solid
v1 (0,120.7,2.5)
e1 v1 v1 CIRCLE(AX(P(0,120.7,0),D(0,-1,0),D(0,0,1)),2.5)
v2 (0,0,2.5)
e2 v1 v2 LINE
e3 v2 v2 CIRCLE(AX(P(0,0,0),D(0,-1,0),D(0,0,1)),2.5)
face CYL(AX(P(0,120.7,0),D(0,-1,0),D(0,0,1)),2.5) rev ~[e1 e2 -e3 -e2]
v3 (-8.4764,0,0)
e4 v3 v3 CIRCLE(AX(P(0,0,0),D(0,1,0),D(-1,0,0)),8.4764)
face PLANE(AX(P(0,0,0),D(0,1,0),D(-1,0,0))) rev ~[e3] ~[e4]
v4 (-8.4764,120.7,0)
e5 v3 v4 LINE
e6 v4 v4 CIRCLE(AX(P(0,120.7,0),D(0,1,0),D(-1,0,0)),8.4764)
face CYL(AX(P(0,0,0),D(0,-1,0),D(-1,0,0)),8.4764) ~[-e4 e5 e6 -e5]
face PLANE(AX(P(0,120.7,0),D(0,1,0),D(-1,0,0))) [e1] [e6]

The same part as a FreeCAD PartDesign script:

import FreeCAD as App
import Part
import Sketcher

doc = App.newDocument("Part")
body = doc.addObject("PartDesign::Body", "Body")

# Sketch on XZ plane
sketch1 = body.newObject("Sketcher::SketchObject", "Sketch")
sketch1.AttachmentSupport = (doc.getObject("XZ_Plane"), [""])
sketch1.MapMode = "FlatFace"
sketch1.addGeometry(Part.Circle(App.Vector(0, 0, 0), App.Vector(0, 0, 1), 8), False)
sketch1.addConstraint(Sketcher.Constraint("Coincident", 0, 3, -1, 1))
sketch1.addConstraint(Sketcher.Constraint("Diameter", 0, 16.9528))
pad1 = body.newObject("PartDesign::Pad", "Pad")
pad1.Profile = sketch1
pad1.Length = 120.7
pad1.Reversed = True

# Sketch on XZ plane
sketch2 = body.newObject("Sketcher::SketchObject", "Sketch001")
sketch2.AttachmentSupport = (doc.getObject("XZ_Plane"), [""])
sketch2.MapMode = "FlatFace"
sketch2.AttachmentOffset = App.Placement(App.Vector(0, 0, -120.7), App.Rotation())
sketch2.addGeometry(Part.Circle(App.Vector(0, 0, 0), App.Vector(0, 0, 1), 2.5), False)
sketch2.addConstraint(Sketcher.Constraint("Coincident", 0, 3, -1, 1))
sketch2.addConstraint(Sketcher.Constraint("Diameter", 0, 5.0))
doc.recompute()
hole = body.newObject("PartDesign::Hole", "Hole")
hole.Profile = sketch2
hole.ThreadType = "None"
hole.Diameter = 5
hole.DepthType = "ThroughAll"
hole.Reversed = True

doc.recompute()
